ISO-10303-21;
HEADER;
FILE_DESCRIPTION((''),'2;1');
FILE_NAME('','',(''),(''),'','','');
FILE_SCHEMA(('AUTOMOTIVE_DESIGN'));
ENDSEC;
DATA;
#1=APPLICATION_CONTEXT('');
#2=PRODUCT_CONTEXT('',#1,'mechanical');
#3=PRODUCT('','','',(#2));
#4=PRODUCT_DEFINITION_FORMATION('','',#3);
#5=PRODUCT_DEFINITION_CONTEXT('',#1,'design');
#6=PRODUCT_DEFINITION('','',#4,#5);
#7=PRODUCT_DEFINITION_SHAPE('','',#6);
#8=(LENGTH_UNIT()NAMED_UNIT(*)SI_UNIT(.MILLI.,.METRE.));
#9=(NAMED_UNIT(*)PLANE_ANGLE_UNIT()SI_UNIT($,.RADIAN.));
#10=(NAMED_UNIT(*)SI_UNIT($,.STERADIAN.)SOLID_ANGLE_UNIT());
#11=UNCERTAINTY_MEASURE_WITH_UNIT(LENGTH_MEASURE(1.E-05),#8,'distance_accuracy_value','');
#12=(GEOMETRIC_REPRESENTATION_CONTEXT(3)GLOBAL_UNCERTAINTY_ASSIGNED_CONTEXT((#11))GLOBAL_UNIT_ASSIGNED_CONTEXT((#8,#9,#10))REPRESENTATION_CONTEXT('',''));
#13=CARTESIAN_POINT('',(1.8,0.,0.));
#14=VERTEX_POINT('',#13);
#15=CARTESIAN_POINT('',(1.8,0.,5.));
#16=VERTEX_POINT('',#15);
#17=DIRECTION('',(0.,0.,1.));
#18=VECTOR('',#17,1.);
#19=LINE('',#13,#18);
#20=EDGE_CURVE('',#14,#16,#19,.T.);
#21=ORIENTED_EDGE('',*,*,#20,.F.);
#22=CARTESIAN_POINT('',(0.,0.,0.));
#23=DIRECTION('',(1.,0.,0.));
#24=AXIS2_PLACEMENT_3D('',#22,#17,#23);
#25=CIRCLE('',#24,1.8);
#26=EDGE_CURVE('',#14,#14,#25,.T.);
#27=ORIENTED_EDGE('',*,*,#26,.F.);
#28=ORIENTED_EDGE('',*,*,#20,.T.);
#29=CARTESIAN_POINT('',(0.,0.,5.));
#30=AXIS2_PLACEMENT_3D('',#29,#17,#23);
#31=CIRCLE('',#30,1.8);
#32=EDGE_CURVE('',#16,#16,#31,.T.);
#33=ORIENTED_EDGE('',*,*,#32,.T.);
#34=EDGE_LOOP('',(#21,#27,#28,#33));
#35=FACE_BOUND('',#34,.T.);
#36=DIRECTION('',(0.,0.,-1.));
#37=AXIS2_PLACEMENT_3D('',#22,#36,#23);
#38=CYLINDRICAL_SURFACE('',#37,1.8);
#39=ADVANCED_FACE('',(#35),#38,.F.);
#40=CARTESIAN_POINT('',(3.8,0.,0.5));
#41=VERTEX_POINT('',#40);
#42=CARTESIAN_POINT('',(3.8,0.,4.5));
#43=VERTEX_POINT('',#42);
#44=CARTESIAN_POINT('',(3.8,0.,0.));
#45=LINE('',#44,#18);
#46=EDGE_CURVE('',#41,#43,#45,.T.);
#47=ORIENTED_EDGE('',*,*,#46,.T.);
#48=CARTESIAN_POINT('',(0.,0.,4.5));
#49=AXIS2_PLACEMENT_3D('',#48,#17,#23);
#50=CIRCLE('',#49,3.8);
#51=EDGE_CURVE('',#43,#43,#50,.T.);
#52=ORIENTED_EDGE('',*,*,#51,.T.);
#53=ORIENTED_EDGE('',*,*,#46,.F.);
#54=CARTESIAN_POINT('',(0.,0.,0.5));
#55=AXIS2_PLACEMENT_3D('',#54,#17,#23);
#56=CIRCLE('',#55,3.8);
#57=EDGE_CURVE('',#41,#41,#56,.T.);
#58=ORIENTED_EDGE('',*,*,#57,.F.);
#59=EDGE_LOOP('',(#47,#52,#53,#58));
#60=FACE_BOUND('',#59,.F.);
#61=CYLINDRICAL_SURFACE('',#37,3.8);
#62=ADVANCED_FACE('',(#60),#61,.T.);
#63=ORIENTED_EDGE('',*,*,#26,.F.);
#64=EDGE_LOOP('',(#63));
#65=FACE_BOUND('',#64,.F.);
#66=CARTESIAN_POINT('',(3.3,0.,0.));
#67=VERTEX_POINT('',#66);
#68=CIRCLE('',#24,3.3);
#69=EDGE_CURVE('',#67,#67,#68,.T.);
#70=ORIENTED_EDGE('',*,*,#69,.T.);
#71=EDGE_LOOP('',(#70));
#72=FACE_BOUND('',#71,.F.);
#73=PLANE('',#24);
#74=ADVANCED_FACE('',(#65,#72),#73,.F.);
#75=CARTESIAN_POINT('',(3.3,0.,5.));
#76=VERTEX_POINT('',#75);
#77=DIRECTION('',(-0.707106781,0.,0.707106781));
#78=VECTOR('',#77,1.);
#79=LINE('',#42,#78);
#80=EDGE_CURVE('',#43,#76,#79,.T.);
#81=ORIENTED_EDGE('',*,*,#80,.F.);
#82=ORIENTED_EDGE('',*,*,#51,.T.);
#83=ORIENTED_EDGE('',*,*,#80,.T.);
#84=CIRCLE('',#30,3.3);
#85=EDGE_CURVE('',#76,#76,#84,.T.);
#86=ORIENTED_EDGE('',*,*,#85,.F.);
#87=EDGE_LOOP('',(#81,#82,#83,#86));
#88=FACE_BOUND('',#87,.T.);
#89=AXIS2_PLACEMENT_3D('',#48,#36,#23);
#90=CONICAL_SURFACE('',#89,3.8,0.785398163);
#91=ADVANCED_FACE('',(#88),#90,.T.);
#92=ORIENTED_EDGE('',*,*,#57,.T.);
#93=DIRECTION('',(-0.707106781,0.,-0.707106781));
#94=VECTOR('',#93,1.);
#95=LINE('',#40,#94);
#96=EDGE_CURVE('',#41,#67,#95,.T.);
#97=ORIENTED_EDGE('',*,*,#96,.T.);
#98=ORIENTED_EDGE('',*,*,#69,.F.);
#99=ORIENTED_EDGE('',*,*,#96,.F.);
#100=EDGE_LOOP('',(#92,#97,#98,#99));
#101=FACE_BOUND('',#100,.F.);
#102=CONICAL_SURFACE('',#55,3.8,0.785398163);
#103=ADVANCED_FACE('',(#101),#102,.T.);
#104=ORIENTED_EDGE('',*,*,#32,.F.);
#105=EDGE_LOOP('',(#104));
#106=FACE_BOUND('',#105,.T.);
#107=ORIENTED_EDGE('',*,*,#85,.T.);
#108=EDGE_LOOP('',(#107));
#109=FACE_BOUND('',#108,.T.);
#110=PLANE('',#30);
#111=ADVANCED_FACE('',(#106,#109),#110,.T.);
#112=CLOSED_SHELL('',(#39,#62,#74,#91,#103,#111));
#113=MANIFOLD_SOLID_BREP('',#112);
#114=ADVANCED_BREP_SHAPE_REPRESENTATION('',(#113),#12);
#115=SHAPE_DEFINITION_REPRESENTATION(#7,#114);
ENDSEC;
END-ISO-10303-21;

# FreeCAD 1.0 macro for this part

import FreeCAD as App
import Part
import Sketcher

V = App.Vector
Q = App.Units.Quantity


def edges_at(feature, points):
    """Names of the edges that pass closest to the given points."""
    edges = feature.Shape.Edges
    near = lambda p: min(range(len(edges)), key=lambda i: edges[i].distToShape(Part.Vertex(*p))[0])
    return sorted({f"Edge{near(p) + 1}" for p in points})

doc = App.newDocument("Part")
body = doc.addObject("PartDesign::Body", "Body")

# Sketch on XY plane
sketch1 = body.newObject("Sketcher::SketchObject", "Sketch")
sketch1.AttachmentSupport = (doc.getObject("XY_Plane"), [""])
sketch1.MapMode = "FlatFace"
sketch1.addGeometry(Part.Circle(V(0, 0, 0), V(0, 0, 1), 3.8), False)
sketch1.addGeometry(Part.Circle(V(0, 0, 0), V(0, 0, 1), 1.8), False)
sketch1.addConstraint(Sketcher.Constraint("Coincident", 0, 3, -1, 1))
sketch1.addConstraint(Sketcher.Constraint("Coincident", 1, 3, -1, 1))
sketch1.addConstraint(Sketcher.Constraint("Diameter", 0, Q("7.6 mm")))
sketch1.addConstraint(Sketcher.Constraint("Diameter", 1, Q("3.6 mm")))
pad1 = body.newObject("PartDesign::Pad", "Pad")
pad1.Profile = sketch1
pad1.Length = 5
doc.recompute()

chamfer = body.newObject("PartDesign::Chamfer", "Chamfer")
chamfer.Base = (pad1, edges_at(pad1, [(-3.8, 0, 0), (-3.8, 0, 5)]))
chamfer.Size = 0.5

doc.recompute()
